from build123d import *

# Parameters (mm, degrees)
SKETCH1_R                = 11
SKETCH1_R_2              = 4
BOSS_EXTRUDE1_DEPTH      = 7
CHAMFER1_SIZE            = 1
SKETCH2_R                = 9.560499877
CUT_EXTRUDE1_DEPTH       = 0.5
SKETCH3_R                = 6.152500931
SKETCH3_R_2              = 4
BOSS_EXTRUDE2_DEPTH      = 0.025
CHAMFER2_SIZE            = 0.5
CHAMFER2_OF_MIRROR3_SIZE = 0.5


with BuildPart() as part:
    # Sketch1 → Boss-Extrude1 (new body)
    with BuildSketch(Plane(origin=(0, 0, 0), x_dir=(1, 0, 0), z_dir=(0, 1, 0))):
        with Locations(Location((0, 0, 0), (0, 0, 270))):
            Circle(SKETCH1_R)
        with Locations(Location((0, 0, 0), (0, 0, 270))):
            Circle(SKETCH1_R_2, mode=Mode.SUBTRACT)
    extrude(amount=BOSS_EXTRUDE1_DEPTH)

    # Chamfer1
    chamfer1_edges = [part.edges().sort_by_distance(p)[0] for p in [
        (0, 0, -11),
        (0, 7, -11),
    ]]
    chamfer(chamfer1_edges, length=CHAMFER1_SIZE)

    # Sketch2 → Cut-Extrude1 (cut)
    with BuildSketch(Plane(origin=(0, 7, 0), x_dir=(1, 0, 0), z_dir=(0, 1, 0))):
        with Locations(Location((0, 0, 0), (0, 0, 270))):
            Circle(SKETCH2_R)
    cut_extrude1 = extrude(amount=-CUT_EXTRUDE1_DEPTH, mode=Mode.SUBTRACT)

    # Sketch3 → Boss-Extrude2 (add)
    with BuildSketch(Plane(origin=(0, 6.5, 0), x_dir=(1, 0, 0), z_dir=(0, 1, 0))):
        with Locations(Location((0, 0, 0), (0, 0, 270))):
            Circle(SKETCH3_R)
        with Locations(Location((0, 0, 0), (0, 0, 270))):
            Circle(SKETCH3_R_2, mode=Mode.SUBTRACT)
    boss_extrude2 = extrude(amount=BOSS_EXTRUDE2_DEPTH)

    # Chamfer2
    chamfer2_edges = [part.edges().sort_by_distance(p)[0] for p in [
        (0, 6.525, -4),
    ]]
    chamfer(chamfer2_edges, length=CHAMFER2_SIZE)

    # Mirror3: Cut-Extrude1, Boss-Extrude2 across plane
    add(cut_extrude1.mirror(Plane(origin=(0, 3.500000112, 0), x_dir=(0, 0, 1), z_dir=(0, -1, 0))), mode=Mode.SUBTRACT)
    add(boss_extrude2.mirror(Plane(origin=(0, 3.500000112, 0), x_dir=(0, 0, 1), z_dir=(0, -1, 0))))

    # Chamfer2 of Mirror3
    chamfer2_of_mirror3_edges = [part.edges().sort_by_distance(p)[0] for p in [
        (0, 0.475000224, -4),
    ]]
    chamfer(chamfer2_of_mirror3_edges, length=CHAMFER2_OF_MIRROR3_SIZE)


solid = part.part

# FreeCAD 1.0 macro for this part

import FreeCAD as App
import Part
import Sketcher
from FreeCAD import Vector
Q = App.Units.Quantity


def edges_at(feature, points):
    """Names of the edges that pass closest to the given points."""
    edges = feature.Shape.Edges
    near = lambda p: min(range(len(edges)), key=lambda i: edges[i].distToShape(Part.Vertex(*p))[0])
    return sorted({f"Edge{near(p) + 1}" for p in points})

doc = App.newDocument("Part")
body = doc.addObject("PartDesign::Body", "Body")

# Sketch on XZ plane
sketch1 = body.newObject("Sketcher::SketchObject", "Sketch")
sketch1.AttachmentSupport = (doc.getObject("XZ_Plane"), [""])
sketch1.MapMode = "FlatFace"
sketch1.addGeometry(Part.Circle(Vector(0, 0, 0), Vector(0, 0, 1), 11), False)
sketch1.addGeometry(Part.Circle(Vector(0, 0, 0), Vector(0, 0, 1), 4), False)
sketch1.addConstraint(Sketcher.Constraint("Coincident", 0, 3, -1, 1))
sketch1.addConstraint(Sketcher.Constraint("Coincident", 1, 3, -1, 1))
sketch1.addConstraint(Sketcher.Constraint("Diameter", 0, Q("22 mm")))
sketch1.addConstraint(Sketcher.Constraint("Diameter", 1, Q("8 mm")))
pad1 = body.newObject("PartDesign::Pad", "Pad")
pad1.Profile = sketch1
pad1.Length = 7
pad1.Reversed = True
doc.recompute()

chamfer = body.newObject("PartDesign::Chamfer", "Chamfer")
chamfer.Base = (pad1, edges_at(pad1, [(0, 0, -11), (0, 7, -11)]))
chamfer.Size = 1

# Sketch on XZ plane
sketch2 = body.newObject("Sketcher::SketchObject", "Sketch001")
sketch2.AttachmentSupport = (doc.getObject("XZ_Plane"), [""])
sketch2.MapMode = "FlatFace"
sketch2.AttachmentOffset = App.Placement(Vector(0, 0, -7), App.Rotation())
sketch2.addGeometry(Part.Circle(Vector(0, 0, 0), Vector(0, 0, 1), 10), False)
sketch2.addConstraint(Sketcher.Constraint("Coincident", 0, 3, -1, 1))
sketch2.addConstraint(Sketcher.Constraint("Diameter", 0, Q("19.121 mm")))
pocket1 = body.newObject("PartDesign::Pocket", "Pocket")
pocket1.Profile = sketch2
pocket1.Length = 0.5
pocket1.Reversed = True

# Sketch on XZ plane
sketch3 = body.newObject("Sketcher::SketchObject", "Sketch002")
sketch3.AttachmentSupport = (doc.getObject("XZ_Plane"), [""])
sketch3.MapMode = "FlatFace"
sketch3.AttachmentOffset = App.Placement(Vector(0, 0, -6.5), App.Rotation())
sketch3.addGeometry(Part.Circle(Vector(0, 0, 0), Vector(0, 0, 1), 6.2), False)
sketch3.addGeometry(Part.Circle(Vector(0, 0, 0), Vector(0, 0, 1), 4), False)
sketch3.addConstraint(Sketcher.Constraint("Coincident", 0, 3, -1, 1))
sketch3.addConstraint(Sketcher.Constraint("Coincident", 1, 3, -1, 1))
sketch3.addConstraint(Sketcher.Constraint("Diameter", 1, Q("8 mm")))
sketch3.addConstraint(Sketcher.Constraint("Diameter", 0, Q("12.305002 mm")))
pad2 = body.newObject("PartDesign::Pad", "Pad001")
pad2.Profile = sketch3
pad2.Length = 0.025
pad2.Reversed = True
doc.recompute()

chamfer2 = body.newObject("PartDesign::Chamfer", "Chamfer001")
chamfer2.Base = (pad2, edges_at(pad2, [(0, 6.525, -4)]))
chamfer2.Size = 0.5
doc.recompute()

datumplane = body.newObject("PartDesign::Plane", "DatumPlane")
datumplane.AttachmentSupport = (doc.getObject("XZ_Plane"), [""])
datumplane.MapMode = "FlatFace"
datumplane.AttachmentOffset = App.Placement(Vector(0, 0, -3.5), App.Rotation())
mirrored = body.newObject("PartDesign::Mirrored", "Mirrored")
mirrored.Originals = [pocket1, pad2]
mirrored.MirrorPlane = (datumplane, [""])
body.Tip = mirrored
doc.recompute()

chamfer3 = body.newObject("PartDesign::Chamfer", "Chamfer002")
chamfer3.Base = (mirrored, edges_at(mirrored, [(0, 0.475, -4)]))
chamfer3.Size = 0.5

doc.recompute()
